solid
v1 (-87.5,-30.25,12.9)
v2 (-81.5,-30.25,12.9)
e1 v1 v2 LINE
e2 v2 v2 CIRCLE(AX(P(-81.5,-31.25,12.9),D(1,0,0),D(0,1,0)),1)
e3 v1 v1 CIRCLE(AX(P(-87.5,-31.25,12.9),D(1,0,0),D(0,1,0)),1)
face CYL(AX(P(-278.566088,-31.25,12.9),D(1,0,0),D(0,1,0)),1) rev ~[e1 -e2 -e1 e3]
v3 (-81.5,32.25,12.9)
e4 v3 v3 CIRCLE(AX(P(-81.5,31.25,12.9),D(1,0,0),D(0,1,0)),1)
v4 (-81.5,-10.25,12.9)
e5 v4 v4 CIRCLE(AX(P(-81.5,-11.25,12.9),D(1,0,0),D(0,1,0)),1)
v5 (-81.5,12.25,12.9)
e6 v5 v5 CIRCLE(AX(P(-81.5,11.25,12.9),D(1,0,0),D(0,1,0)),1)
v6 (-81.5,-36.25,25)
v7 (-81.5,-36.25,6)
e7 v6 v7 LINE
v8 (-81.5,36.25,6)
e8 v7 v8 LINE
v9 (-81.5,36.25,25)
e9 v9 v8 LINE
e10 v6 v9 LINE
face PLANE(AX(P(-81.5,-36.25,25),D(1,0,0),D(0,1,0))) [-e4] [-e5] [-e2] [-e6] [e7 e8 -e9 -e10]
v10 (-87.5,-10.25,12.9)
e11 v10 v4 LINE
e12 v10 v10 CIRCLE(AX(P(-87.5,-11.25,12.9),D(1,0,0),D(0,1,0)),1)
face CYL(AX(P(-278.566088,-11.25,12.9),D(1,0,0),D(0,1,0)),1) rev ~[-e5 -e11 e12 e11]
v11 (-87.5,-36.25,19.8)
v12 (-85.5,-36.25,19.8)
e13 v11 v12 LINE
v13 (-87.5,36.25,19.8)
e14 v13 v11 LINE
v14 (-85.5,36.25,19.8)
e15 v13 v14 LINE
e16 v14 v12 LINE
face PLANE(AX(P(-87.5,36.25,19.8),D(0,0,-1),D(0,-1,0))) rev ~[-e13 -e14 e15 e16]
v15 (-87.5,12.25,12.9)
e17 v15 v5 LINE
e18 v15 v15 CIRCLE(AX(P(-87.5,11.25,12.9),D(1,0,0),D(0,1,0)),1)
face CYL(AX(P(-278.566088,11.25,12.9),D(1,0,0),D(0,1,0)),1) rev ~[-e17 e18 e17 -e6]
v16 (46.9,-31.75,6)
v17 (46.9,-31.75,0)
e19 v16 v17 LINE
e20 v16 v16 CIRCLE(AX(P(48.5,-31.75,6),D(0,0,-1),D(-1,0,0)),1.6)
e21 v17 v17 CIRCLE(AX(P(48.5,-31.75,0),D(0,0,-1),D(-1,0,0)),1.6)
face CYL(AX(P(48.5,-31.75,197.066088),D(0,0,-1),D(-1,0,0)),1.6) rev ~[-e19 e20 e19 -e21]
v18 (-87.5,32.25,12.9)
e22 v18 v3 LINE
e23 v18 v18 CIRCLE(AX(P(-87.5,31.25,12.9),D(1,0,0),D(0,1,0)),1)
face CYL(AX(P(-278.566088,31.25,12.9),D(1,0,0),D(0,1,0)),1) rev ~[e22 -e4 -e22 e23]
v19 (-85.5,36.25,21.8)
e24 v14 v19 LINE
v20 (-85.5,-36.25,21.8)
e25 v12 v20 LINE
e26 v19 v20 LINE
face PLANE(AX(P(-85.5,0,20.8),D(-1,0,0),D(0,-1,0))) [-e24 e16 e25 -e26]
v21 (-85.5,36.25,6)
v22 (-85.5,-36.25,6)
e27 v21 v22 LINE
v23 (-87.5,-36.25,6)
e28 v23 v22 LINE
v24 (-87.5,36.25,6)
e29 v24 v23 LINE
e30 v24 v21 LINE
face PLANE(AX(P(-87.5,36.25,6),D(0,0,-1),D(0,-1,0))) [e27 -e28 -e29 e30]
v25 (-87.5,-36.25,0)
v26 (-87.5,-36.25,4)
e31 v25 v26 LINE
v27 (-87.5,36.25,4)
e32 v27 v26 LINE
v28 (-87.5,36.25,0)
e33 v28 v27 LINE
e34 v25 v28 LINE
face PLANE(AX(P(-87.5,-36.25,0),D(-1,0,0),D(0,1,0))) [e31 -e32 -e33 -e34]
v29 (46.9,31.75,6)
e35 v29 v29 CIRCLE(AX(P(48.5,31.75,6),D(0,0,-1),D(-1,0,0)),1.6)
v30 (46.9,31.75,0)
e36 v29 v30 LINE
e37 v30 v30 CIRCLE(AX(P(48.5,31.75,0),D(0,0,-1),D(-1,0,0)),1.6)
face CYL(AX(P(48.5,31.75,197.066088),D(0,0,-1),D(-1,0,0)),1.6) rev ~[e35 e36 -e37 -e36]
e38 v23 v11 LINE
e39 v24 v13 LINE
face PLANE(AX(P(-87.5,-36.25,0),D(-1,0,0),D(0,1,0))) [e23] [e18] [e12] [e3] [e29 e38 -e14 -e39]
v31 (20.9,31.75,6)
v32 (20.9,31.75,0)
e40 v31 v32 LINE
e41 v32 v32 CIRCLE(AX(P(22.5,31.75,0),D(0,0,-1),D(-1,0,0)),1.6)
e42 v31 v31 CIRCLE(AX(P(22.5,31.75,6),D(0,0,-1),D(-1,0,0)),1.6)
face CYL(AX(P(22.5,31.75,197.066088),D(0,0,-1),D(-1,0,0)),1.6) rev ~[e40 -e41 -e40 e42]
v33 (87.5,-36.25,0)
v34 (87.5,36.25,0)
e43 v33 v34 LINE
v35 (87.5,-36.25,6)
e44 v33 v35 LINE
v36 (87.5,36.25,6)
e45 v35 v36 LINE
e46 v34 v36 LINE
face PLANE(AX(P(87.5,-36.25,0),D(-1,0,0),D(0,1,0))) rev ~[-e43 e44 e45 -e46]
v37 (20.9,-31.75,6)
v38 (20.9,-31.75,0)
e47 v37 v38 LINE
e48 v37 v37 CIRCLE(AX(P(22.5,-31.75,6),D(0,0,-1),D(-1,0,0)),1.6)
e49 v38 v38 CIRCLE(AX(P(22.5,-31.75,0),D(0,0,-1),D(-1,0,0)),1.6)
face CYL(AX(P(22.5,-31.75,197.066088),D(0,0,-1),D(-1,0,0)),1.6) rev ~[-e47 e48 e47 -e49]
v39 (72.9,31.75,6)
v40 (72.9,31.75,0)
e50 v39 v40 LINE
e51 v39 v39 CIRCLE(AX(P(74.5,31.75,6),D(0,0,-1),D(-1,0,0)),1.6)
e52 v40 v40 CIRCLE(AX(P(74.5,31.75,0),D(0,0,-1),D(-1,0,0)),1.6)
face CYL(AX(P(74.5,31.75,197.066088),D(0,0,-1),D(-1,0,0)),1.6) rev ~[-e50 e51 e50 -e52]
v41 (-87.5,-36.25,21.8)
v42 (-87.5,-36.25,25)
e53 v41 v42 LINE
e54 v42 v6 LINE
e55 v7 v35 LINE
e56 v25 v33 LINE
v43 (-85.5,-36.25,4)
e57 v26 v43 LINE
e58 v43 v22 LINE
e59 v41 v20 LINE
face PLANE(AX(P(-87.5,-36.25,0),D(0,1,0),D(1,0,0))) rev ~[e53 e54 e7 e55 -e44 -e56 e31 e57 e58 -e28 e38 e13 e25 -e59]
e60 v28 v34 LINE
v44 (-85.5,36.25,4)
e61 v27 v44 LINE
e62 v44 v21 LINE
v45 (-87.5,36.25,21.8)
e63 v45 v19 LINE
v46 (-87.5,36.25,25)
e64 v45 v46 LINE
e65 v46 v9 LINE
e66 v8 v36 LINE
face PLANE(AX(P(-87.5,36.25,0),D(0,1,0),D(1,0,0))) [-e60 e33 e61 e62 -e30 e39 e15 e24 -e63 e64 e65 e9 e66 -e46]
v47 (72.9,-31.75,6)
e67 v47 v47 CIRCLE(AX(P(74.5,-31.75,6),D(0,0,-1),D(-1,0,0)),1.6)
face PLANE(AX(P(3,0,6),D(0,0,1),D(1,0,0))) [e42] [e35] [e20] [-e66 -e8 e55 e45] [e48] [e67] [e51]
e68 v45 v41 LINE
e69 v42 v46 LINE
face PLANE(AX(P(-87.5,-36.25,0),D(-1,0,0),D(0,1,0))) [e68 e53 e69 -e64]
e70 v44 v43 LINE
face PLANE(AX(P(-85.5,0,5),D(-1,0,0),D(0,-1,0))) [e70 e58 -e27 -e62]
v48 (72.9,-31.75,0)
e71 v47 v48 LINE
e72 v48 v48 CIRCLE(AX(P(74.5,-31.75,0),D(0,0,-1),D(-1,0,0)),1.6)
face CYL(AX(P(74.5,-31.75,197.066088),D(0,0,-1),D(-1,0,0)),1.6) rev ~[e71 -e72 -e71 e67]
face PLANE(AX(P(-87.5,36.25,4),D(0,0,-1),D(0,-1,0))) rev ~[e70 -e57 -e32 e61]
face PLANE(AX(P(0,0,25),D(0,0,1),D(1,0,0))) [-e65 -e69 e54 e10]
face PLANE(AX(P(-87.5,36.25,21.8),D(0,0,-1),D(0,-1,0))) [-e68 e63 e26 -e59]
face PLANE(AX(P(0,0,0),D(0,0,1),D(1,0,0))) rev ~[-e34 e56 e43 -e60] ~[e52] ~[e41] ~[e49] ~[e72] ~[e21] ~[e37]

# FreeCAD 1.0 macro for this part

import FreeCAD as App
import Part
import Sketcher
from FreeCAD import Vector
Q = App.Units.Quantity

doc = App.newDocument("Part")
params = doc.addObject("Spreadsheet::Sheet", "Params")
for row, (alias, value) in enumerate([
    ("sketch1_width", "175 mm"),
    ("sketch1_height", "72.5 mm"),
    ("pad1_length", "25 mm"),
    ("sketch2_width", "169 mm"),
    ("sketch2_height", "72.5 mm"),
    ("pocket1_length", "19 mm"),
    ("sketch3_diameter", "3.2 mm"),
    ("hole_diameter", "3.2 mm"),
    ("sketch4_height", "2 mm"),
    ("sketch4_width", "72.5 mm"),
    ("pocket2_length", "2 mm"),
    ("sketch5_diameter", "2 mm"),
    ("hole2_diameter", "2 mm"),
], start=1):
    params.set(f"A{row}", alias)
    params.set(f"B{row}", "=" + value)
    params.setAlias(f"B{row}", alias)

body = doc.addObject("PartDesign::Body", "Body")

sketch1 = body.newObject("Sketcher::SketchObject", "Sketch")
sketch1.AttachmentSupport = (doc.getObject("XY_Plane"), [""])
sketch1.MapMode = "FlatFace"
sketch1.addGeometry([
    Part.LineSegment(Vector(-88, 36, 0), Vector(-88, -36, 0)),
    Part.LineSegment(Vector(-88, -36, 0), Vector(88, -36, 0)),
    Part.LineSegment(Vector(88, -36, 0), Vector(88, 36, 0)),
    Part.LineSegment(Vector(88, 36, 0), Vector(-88, 36, 0)),
], False)
sketch1.addConstraint([
    Sketcher.Constraint("Coincident", 0, 2, 1, 1),
    Sketcher.Constraint("Coincident", 1, 2, 2, 1),
    Sketcher.Constraint("Coincident", 2, 2, 3, 1),
    Sketcher.Constraint("Coincident", 3, 2, 0, 1),
    Sketcher.Constraint("Vertical", 0),
    Sketcher.Constraint("Horizontal", 1),
    Sketcher.Constraint("Vertical", 2),
    Sketcher.Constraint("Horizontal", 3),
    Sketcher.Constraint("Symmetric", 0, 2, 2, 2, -1, 1),
    Sketcher.Constraint("DistanceX", 1, 1, 1, 2, Q("175 mm")),
    Sketcher.Constraint("DistanceY", 0, 2, 0, 1, Q("72.5 mm")),
])
sketch1.setExpression("Constraints[9]", "Params.sketch1_width")
sketch1.setExpression("Constraints[10]", "Params.sketch1_height")
pad1 = body.newObject("PartDesign::Pad", "Pad")
pad1.Profile = sketch1
pad1.setExpression("Length", "Params.pad1_length")

sketch2 = body.newObject("Sketcher::SketchObject", "Sketch001")
sketch2.AttachmentSupport = (doc.getObject("XY_Plane"), [""])
sketch2.MapMode = "FlatFace"
sketch2.AttachmentOffset = App.Placement(Vector(0, 0, 25), App.Rotation())
sketch2.addGeometry([
    Part.LineSegment(Vector(-82, 36, 0), Vector(-82, -36, 0)),
    Part.LineSegment(Vector(-82, -36, 0), Vector(88, -36, 0)),
    Part.LineSegment(Vector(88, -36, 0), Vector(88, 36, 0)),
    Part.LineSegment(Vector(88, 36, 0), Vector(-82, 36, 0)),
], False)
sketch2.addConstraint([
    Sketcher.Constraint("Coincident", 0, 2, 1, 1),
    Sketcher.Constraint("Coincident", 1, 2, 2, 1),
    Sketcher.Constraint("Coincident", 2, 2, 3, 1),
    Sketcher.Constraint("Coincident", 3, 2, 0, 1),
    Sketcher.Constraint("Vertical", 0),
    Sketcher.Constraint("Horizontal", 1),
    Sketcher.Constraint("Vertical", 2),
    Sketcher.Constraint("Horizontal", 3),
    Sketcher.Constraint("DistanceX", 1, 1, 1, 2, Q("169 mm")),
    Sketcher.Constraint("DistanceY", 0, 2, 0, 1, Q("72.5 mm")),
    Sketcher.Constraint("DistanceX", 0, 2, -1, 1, Q("81.5 mm")),
    Sketcher.Constraint("DistanceY", 0, 2, -1, 1, Q("36.25 mm")),
])
sketch2.setExpression("Constraints[8]", "Params.sketch2_width")
sketch2.setExpression("Constraints[9]", "Params.sketch2_height")
pocket1 = body.newObject("PartDesign::Pocket", "Pocket")
pocket1.Profile = sketch2
pocket1.setExpression("Length", "Params.pocket1_length")

sketch3 = body.newObject("Sketcher::SketchObject", "Sketch002")
sketch3.AttachmentSupport = (doc.getObject("XY_Plane"), [""])
sketch3.MapMode = "FlatFace"
sketch3.AttachmentOffset = App.Placement(Vector(0, 0, 6), App.Rotation())
sketch3.addGeometry([
    Part.Circle(Vector(22.5, 31.8, 0), Vector(0, 0, 1), 1.6),
    Part.Circle(Vector(48.5, 31.8, 0), Vector(0, 0, 1), 1.6),
    Part.Circle(Vector(74.5, 31.8, 0), Vector(0, 0, 1), 1.6),
    Part.Circle(Vector(74.5, -31.8, 0), Vector(0, 0, 1), 1.6),
    Part.Circle(Vector(48.5, -31.8, 0), Vector(0, 0, 1), 1.6),
    Part.Circle(Vector(22.5, -31.8, 0), Vector(0, 0, 1), 1.6),
], False)
sketch3.addConstraint([
    Sketcher.Constraint("Equal", 0, 1),
    Sketcher.Constraint("Equal", 1, 2),
    Sketcher.Constraint("Equal", 2, 3),
    Sketcher.Constraint("Equal", 3, 4),
    Sketcher.Constraint("Equal", 4, 5),
    Sketcher.Constraint("Symmetric", 2, 3, 3, 3, -1),
    Sketcher.Constraint("Symmetric", 1, 3, 4, 3, -1),
    Sketcher.Constraint("Symmetric", 0, 3, 5, 3, -1),
    Sketcher.Constraint("Horizontal", 0, 3, 1, 3),
    Sketcher.Constraint("Horizontal", 1, 3, 2, 3),
    Sketcher.Constraint("Diameter", 0, Q("3.2 mm")),
    Sketcher.Constraint("DistanceX", 0, 3, 1, 3, Q("26 mm")),
    Sketcher.Constraint("DistanceX", 1, 3, 2, 3, Q("26 mm")),
    Sketcher.Constraint("DistanceX", -1, 1, 0, 3, Q("22.5 mm")),
    Sketcher.Constraint("DistanceY", 3, 3, 2, 3, Q("63.5 mm")),
])
sketch3.setExpression("Constraints[10]", "Params.sketch3_diameter")
doc.recompute()
hole = body.newObject("PartDesign::Hole", "Hole")
hole.Profile = sketch3
hole.ThreadType = "None"
hole.setExpression("Diameter", "Params.hole_diameter")
hole.DepthType = "ThroughAll"

sketch4 = body.newObject("Sketcher::SketchObject", "Sketch003")
sketch4.AttachmentSupport = (doc.getObject("YZ_Plane"), [""])
sketch4.MapMode = "FlatFace"
sketch4.AttachmentOffset = App.Placement(Vector(0, 0, -87.5), App.Rotation())
sketch4.addGeometry([
    Part.LineSegment(Vector(36.2, 6, 0), Vector(36.2, 4, 0)),
    Part.LineSegment(Vector(36.2, 4, 0), Vector(-36.2, 4, 0)),
    Part.LineSegment(Vector(-36.2, 4, 0), Vector(-36.2, 6, 0)),
    Part.LineSegment(Vector(-36.2, 6, 0), Vector(36.2, 6, 0)),
    Part.LineSegment(Vector(36.2, 21.8, 0), Vector(36.2, 19.8, 0)),
    Part.LineSegment(Vector(36.2, 19.8, 0), Vector(-36.2, 19.8, 0)),
    Part.LineSegment(Vector(-36.2, 19.8, 0), Vector(-36.2, 21.8, 0)),
    Part.LineSegment(Vector(-36.2, 21.8, 0), Vector(36.2, 21.8, 0)),
], False)
sketch4.addConstraint([
    Sketcher.Constraint("Coincident", 0, 2, 1, 1),
    Sketcher.Constraint("Coincident", 1, 2, 2, 1),
    Sketcher.Constraint("Coincident", 2, 2, 3, 1),
    Sketcher.Constraint("Coincident", 3, 2, 0, 1),
    Sketcher.Constraint("Coincident", 4, 2, 5, 1),
    Sketcher.Constraint("Coincident", 5, 2, 6, 1),
    Sketcher.Constraint("Coincident", 6, 2, 7, 1),
    Sketcher.Constraint("Coincident", 7, 2, 4, 1),
    Sketcher.Constraint("Vertical", 0),
    Sketcher.Constraint("Horizontal", 1),
    Sketcher.Constraint("Vertical", 2),
    Sketcher.Constraint("Horizontal", 3),
    Sketcher.Constraint("Vertical", 4),
    Sketcher.Constraint("Horizontal", 5),
    Sketcher.Constraint("Vertical", 6),
    Sketcher.Constraint("Horizontal", 7),
    Sketcher.Constraint("Vertical", 3, 2, 4, 2),
    Sketcher.Constraint("Vertical", 2, 2, 5, 2),
    Sketcher.Constraint("Equal", 2, 4),
    Sketcher.Constraint("DistanceY", 0, 2, 0, 1, Q("2 mm")),
    Sketcher.Constraint("DistanceX", 1, 2, 1, 1, Q("72.5 mm")),
    Sketcher.Constraint("DistanceY", -1, 1, 0, 2, Q("4 mm")),
    Sketcher.Constraint("DistanceY", -1, 1, 4, 2, Q("19.8 mm")),
    Sketcher.Constraint("DistanceX", -1, 1, 0, 2, Q("36.25 mm")),
])
sketch4.setExpression("Constraints[19]", "Params.sketch4_height")
sketch4.setExpression("Constraints[20]", "Params.sketch4_width")
pocket2 = body.newObject("PartDesign::Pocket", "Pocket001")
pocket2.Profile = sketch4
pocket2.setExpression("Length", "Params.pocket2_length")
pocket2.Reversed = True

sketch5 = body.newObject("Sketcher::SketchObject", "Sketch004")
sketch5.AttachmentSupport = (doc.getObject("YZ_Plane"), [""])
sketch5.MapMode = "FlatFace"
sketch5.AttachmentOffset = App.Placement(Vector(0, 0, -87.5), App.Rotation())
sketch5.addGeometry([
    Part.Circle(Vector(31.2, 12.9, 0), Vector(0, 0, 1), 1),
    Part.Circle(Vector(11.2, 12.9, 0), Vector(0, 0, 1), 1),
    Part.Circle(Vector(-11.2, 12.9, 0), Vector(0, 0, 1), 1),
    Part.Circle(Vector(-31.2, 12.9, 0), Vector(0, 0, 1), 1),
], False)
sketch5.addConstraint([
    Sketcher.Constraint("Equal", 0, 1),
    Sketcher.Constraint("Equal", 1, 2),
    Sketcher.Constraint("Equal", 2, 3),
    Sketcher.Constraint("Symmetric", 1, 3, 2, 3, -2),
    Sketcher.Constraint("Symmetric", 0, 3, 3, 3, -2),
    Sketcher.Constraint("Horizontal", 0, 3, 1, 3),
    Sketcher.Constraint("Diameter", 0, Q("2 mm")),
    Sketcher.Constraint("DistanceX", 1, 3, 0, 3, Q("20 mm")),
    Sketcher.Constraint("DistanceY", -1, 1, 0, 3, Q("12.9 mm")),
    Sketcher.Constraint("DistanceX", 2, 3, 1, 3, Q("22.5 mm")),
])
sketch5.setExpression("Constraints[6]", "Params.sketch5_diameter")
doc.recompute()
hole2 = body.newObject("PartDesign::Hole", "Hole001")
hole2.Profile = sketch5
hole2.ThreadType = "None"
hole2.setExpression("Diameter", "Params.hole2_diameter")
hole2.DepthType = "ThroughAll"
hole2.Reversed = True

doc.recompute()
